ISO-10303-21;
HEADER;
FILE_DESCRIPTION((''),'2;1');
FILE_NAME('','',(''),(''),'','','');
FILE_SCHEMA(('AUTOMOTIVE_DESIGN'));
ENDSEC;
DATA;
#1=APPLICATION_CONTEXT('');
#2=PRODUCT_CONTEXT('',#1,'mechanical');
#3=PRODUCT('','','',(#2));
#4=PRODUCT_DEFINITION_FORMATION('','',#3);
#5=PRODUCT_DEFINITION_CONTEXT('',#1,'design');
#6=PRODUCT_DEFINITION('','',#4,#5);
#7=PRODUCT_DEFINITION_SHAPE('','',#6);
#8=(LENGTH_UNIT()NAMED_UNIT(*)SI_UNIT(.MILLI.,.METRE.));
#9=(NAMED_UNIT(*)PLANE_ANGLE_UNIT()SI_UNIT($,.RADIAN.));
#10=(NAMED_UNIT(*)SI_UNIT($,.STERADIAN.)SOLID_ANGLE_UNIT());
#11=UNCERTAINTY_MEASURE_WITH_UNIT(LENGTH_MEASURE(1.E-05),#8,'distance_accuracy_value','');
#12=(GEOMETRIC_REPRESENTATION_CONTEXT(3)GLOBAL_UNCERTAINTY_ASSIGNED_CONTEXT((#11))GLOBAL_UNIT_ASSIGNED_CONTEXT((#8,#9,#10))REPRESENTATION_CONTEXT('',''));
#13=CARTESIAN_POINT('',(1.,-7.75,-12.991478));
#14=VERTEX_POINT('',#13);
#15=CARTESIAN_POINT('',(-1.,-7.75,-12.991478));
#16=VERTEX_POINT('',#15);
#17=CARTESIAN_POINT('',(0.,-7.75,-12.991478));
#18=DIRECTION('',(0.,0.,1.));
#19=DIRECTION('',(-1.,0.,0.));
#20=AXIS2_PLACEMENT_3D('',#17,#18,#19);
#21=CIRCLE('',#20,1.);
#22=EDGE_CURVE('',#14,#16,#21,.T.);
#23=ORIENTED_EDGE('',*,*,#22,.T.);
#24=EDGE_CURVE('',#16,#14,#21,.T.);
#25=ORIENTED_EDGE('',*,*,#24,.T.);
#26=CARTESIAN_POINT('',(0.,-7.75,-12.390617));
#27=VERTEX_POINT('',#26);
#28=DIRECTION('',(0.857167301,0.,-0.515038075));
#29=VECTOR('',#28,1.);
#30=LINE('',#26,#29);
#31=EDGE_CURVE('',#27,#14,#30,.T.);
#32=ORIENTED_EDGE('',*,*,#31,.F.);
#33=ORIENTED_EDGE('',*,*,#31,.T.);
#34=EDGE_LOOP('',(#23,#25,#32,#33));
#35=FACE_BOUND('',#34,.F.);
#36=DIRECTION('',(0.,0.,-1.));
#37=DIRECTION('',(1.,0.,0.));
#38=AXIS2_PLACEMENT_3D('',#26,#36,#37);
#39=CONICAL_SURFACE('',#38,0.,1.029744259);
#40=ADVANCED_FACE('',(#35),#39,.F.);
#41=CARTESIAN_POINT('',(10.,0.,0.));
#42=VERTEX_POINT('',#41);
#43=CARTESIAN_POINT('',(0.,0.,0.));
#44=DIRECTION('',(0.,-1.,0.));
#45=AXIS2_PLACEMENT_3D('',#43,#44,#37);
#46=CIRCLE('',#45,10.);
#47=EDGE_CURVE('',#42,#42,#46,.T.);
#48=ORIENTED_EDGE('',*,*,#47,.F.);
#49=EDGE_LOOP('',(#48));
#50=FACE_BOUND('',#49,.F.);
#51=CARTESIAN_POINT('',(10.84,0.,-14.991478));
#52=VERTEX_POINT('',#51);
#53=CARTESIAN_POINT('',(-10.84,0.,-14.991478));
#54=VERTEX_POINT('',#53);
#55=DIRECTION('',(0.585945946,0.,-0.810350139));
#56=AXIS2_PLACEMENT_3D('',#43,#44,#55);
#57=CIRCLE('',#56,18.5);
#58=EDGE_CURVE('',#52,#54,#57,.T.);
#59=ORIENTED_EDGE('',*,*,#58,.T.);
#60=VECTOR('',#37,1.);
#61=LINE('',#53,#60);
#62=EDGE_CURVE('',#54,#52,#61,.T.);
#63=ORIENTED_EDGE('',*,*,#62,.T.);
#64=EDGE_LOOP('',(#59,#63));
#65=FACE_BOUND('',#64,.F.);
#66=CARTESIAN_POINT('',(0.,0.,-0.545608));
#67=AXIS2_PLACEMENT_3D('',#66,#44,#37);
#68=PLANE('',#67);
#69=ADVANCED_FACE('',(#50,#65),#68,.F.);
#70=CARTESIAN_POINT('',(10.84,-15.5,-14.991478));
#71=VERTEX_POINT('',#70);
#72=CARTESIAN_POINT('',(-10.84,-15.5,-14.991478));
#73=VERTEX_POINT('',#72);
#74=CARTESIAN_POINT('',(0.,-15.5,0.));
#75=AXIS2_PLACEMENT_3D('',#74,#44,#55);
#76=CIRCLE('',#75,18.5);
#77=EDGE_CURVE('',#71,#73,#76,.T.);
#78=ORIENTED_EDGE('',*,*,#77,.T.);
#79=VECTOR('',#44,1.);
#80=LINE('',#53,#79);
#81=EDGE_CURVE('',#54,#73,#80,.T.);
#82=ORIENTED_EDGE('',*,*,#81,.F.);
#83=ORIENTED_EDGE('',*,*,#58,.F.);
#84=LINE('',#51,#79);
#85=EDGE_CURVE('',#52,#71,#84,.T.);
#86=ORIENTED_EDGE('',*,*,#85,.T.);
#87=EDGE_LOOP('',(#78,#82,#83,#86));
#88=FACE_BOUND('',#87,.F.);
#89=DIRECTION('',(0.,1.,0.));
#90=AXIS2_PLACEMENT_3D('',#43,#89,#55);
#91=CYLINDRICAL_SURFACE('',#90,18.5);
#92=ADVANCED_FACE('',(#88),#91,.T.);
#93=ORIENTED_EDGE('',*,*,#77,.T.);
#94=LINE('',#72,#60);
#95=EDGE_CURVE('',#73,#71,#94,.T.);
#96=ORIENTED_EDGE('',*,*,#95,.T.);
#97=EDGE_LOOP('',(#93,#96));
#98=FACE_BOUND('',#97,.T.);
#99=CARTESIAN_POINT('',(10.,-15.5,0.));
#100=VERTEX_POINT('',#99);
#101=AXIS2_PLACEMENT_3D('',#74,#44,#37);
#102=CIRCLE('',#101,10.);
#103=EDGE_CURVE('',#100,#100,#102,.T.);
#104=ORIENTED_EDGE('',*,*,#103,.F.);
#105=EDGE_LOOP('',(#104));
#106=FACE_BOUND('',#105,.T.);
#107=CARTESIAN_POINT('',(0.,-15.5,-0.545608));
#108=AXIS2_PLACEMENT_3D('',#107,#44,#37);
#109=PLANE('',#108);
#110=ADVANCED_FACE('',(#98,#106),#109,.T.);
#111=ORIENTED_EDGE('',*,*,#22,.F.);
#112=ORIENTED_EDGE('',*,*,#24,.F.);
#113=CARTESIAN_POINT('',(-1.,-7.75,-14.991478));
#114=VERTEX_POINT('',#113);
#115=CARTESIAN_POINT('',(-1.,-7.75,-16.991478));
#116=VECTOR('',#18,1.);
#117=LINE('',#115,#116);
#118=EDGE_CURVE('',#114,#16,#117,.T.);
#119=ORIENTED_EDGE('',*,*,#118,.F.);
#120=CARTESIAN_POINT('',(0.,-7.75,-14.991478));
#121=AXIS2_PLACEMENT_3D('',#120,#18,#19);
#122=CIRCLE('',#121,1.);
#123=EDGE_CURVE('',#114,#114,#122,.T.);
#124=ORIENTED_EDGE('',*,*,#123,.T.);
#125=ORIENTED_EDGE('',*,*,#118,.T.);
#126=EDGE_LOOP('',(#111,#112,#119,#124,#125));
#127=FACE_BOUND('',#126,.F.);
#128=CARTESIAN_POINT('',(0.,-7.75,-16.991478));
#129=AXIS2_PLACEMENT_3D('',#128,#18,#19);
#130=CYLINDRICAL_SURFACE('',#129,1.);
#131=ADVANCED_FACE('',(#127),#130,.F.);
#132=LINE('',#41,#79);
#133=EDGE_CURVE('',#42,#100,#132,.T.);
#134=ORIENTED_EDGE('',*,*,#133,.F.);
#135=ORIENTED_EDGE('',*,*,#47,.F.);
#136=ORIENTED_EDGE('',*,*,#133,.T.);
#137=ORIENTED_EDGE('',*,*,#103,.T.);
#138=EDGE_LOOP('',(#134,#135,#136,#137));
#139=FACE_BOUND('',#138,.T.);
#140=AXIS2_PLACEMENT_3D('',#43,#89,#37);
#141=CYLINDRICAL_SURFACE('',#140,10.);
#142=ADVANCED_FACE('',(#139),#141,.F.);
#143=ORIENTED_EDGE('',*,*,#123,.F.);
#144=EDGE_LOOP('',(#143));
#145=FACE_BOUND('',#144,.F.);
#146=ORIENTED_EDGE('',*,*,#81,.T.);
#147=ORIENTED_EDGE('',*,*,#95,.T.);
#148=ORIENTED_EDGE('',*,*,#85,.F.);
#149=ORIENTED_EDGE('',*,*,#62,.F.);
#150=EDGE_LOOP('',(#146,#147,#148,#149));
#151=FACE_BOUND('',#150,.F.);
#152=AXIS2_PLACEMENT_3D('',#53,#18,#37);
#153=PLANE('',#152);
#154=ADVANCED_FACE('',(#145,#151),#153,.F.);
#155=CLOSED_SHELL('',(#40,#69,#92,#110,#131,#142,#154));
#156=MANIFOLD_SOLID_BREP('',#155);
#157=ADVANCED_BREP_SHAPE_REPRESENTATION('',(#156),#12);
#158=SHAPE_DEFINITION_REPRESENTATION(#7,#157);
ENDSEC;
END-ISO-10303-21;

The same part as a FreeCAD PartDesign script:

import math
import FreeCAD as App
import Part
import Sketcher

V = App.Vector

doc = App.newDocument("Part")
params = doc.addObject("Spreadsheet::Sheet", "Params")
for row, (alias, value) in enumerate([
    ("sketch1_diameter", "20 mm"),
    ("sketch1_radius", "18.5 mm"),
    ("sketch1_width", "21.68 mm"),
    ("pad1_length", "15.5 mm"),
    ("sketch2_diameter", "2 mm"),
    ("hole_diameter", "2 mm"),
    ("hole_depth", "2 mm"),
], start=1):
    params.set(f"A{row}", alias)
    params.set(f"B{row}", "=" + value)
    params.setAlias(f"B{row}", alias)

body = doc.addObject("PartDesign::Body", "Body")

sketch1 = body.newObject("Sketcher::SketchObject", "Sketch")
sketch1.AttachmentSupport = (doc.getObject("XZ_Plane"), [""])
sketch1.MapMode = "FlatFace"
sketch1.addGeometry(Part.LineSegment(V(-11, -15, 0), V(11, -15, 0)), False)
sketch1.addGeometry(Part.ArcOfCircle(Part.Circle(V(0, 0, 0), V(0, 0, 1), 18), math.radians(-54), math.radians(234)), False)
sketch1.addGeometry(Part.Circle(V(0, 0, 0), V(0, 0, 1), 10), False)
sketch1.addConstraint(Sketcher.Constraint("Coincident", 0, 1, 1, 2))
sketch1.addConstraint(Sketcher.Constraint("Coincident", 1, 1, 0, 2))
sketch1.addConstraint(Sketcher.Constraint("Horizontal", 0))
sketch1.addConstraint(Sketcher.Constraint("Coincident", 1, 3, -1, 1))
sketch1.addConstraint(Sketcher.Constraint("Coincident", 2, 3, -1, 1))
sketch1.addConstraint(Sketcher.Constraint("Diameter", 2, 20.0))
sketch1.addConstraint(Sketcher.Constraint("Radius", 1, 18.5))
sketch1.addConstraint(Sketcher.Constraint("DistanceX", 0, 1, 0, 2, 21.68))
sketch1.setExpression("Constraints[5]", "Params.sketch1_diameter")
sketch1.setExpression("Constraints[6]", "Params.sketch1_radius")
sketch1.setExpression("Constraints[7]", "Params.sketch1_width")
pad1 = body.newObject("PartDesign::Pad", "Pad")
pad1.Profile = sketch1
pad1.setExpression("Length", "Params.pad1_length")

sketch2 = body.newObject("Sketcher::SketchObject", "Sketch001")
sketch2.AttachmentSupport = (doc.getObject("XY_Plane"), [""])
sketch2.MapMode = "FlatFace"
sketch2.AttachmentOffset = App.Placement(V(0, 0, -14.991478), App.Rotation())
sketch2.addGeometry(Part.Circle(V(0, -7.8, 0), V(0, 0, 1), 1), False)
sketch2.addConstraint(Sketcher.Constraint("PointOnObject", 0, 3, -2))
sketch2.addConstraint(Sketcher.Constraint("Diameter", 0, 2.0))
sketch2.addConstraint(Sketcher.Constraint("DistanceY", 0, 3, -1, 1, 7.75))
sketch2.setExpression("Constraints[1]", "Params.sketch2_diameter")
doc.recompute()
hole = body.newObject("PartDesign::Hole", "Hole")
hole.Profile = sketch2
hole.ThreadType = "None"
hole.setExpression("Diameter", "Params.hole_diameter")
hole.DepthType = "Dimension"
hole.setExpression("Depth", "Params.hole_depth")
hole.DrillPoint = "Angled"
hole.DrillPointAngle = 118
hole.Reversed = True

doc.recompute()
